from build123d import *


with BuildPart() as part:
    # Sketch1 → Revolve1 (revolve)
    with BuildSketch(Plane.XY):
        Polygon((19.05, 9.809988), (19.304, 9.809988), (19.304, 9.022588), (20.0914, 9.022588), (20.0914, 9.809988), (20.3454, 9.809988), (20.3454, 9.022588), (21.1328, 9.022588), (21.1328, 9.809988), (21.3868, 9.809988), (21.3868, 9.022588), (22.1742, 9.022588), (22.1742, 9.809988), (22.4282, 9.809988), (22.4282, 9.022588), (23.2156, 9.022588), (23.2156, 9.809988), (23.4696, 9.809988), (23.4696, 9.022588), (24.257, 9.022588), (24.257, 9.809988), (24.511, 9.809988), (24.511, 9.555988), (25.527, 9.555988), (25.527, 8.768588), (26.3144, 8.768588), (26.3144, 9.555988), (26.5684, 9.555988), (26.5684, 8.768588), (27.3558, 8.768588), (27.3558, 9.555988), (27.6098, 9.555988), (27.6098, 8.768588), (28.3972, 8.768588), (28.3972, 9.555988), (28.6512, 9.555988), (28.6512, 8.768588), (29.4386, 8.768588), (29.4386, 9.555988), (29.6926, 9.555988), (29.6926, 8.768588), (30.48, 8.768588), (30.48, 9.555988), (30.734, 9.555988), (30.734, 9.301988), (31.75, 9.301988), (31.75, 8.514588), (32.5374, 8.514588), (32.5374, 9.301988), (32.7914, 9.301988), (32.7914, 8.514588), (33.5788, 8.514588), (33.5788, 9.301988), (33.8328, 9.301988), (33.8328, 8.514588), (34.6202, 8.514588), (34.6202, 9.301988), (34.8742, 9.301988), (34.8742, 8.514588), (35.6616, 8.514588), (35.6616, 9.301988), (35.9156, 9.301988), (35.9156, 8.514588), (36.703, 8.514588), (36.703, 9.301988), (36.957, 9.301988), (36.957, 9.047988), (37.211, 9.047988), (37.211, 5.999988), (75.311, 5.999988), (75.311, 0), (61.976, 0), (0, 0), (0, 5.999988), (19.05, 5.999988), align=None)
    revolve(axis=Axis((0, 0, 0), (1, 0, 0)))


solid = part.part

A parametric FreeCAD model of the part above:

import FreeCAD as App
import Part
import Sketcher

V = App.Vector
Q = App.Units.Quantity

doc = App.newDocument("Part")
body = doc.addObject("PartDesign::Body", "Body")

# Sketch on XY plane
sketch1 = body.newObject("Sketcher::SketchObject", "Sketch")
sketch1.AttachmentSupport = (doc.getObject("XY_Plane"), [""])
sketch1.MapMode = "FlatFace"
sketch1.addGeometry([
    Part.LineSegment(V(19.304, 9.809988, 0), V(19.05, 9.809988, 0)),  # 0
    Part.LineSegment(V(19.05, 9.809988, 0), V(19.05, 5.999988, 0)),  # 1
    Part.LineSegment(V(19.05, 5.999988, 0), V(0, 5.999988, 0)),  # 2
    Part.LineSegment(V(0, 5.999988, 0), V(0, 0, 0)),  # 3
    Part.LineSegment(V(0, 0, 0), V(75.311, 0, 0)),  # 4
    Part.LineSegment(V(75.311, 0, 0), V(75.311, 5.999988, 0)),  # 5
    Part.LineSegment(V(75.311, 5.999988, 0), V(37.211, 5.999988, 0)),  # 6
    Part.LineSegment(V(37.211, 5.999988, 0), V(37.211, 9.047988, 0)),  # 7
    Part.LineSegment(V(37.211, 9.047988, 0), V(36.957, 9.047988, 0)),  # 8
    Part.LineSegment(V(36.957, 9.047988, 0), V(36.957, 9.301988, 0)),  # 9
    Part.LineSegment(V(36.957, 9.301988, 0), V(36.703, 9.301988, 0)),  # 10
    Part.LineSegment(V(36.703, 9.301988, 0), V(36.703, 8.514588, 0)),  # 11
    Part.LineSegment(V(36.703, 8.514588, 0), V(35.9156, 8.514588, 0)),  # 12
    Part.LineSegment(V(35.9156, 8.514588, 0), V(35.9156, 9.301988, 0)),  # 13
    Part.LineSegment(V(35.9156, 9.301988, 0), V(35.6616, 9.301988, 0)),  # 14
    Part.LineSegment(V(35.6616, 9.301988, 0), V(35.6616, 8.514588, 0)),  # 15
    Part.LineSegment(V(35.6616, 8.514588, 0), V(34.8742, 8.514588, 0)),  # 16
    Part.LineSegment(V(34.8742, 8.514588, 0), V(34.8742, 9.301988, 0)),  # 17
    Part.LineSegment(V(34.8742, 9.301988, 0), V(34.6202, 9.301988, 0)),  # 18
    Part.LineSegment(V(34.6202, 9.301988, 0), V(34.6202, 8.514588, 0)),  # 19
    Part.LineSegment(V(34.6202, 8.514588, 0), V(33.8328, 8.514588, 0)),  # 20
    Part.LineSegment(V(33.8328, 8.514588, 0), V(33.8328, 9.301988, 0)),  # 21
    Part.LineSegment(V(33.8328, 9.301988, 0), V(33.5788, 9.301988, 0)),  # 22
    Part.LineSegment(V(33.5788, 9.301988, 0), V(33.5788, 8.514588, 0)),  # 23
    Part.LineSegment(V(33.5788, 8.514588, 0), V(32.7914, 8.514588, 0)),  # 24
    Part.LineSegment(V(32.7914, 8.514588, 0), V(32.7914, 9.301988, 0)),  # 25
    Part.LineSegment(V(32.7914, 9.301988, 0), V(32.5374, 9.301988, 0)),  # 26
    Part.LineSegment(V(32.5374, 9.301988, 0), V(32.5374, 8.514588, 0)),  # 27
    Part.LineSegment(V(32.5374, 8.514588, 0), V(31.75, 8.514588, 0)),  # 28
    Part.LineSegment(V(31.75, 8.514588, 0), V(31.75, 9.301988, 0)),  # 29
    Part.LineSegment(V(31.75, 9.301988, 0), V(30.734, 9.301988, 0)),  # 30
    Part.LineSegment(V(30.734, 9.301988, 0), V(30.734, 9.555988, 0)),  # 31
    Part.LineSegment(V(30.734, 9.555988, 0), V(30.48, 9.555988, 0)),  # 32
    Part.LineSegment(V(30.48, 9.555988, 0), V(30.48, 8.768588, 0)),  # 33
    Part.LineSegment(V(30.48, 8.768588, 0), V(29.6926, 8.768588, 0)),  # 34
    Part.LineSegment(V(29.6926, 8.768588, 0), V(29.6926, 9.555988, 0)),  # 35
    Part.LineSegment(V(29.6926, 9.555988, 0), V(29.4386, 9.555988, 0)),  # 36
    Part.LineSegment(V(29.4386, 9.555988, 0), V(29.4386, 8.768588, 0)),  # 37
    Part.LineSegment(V(29.4386, 8.768588, 0), V(28.6512, 8.768588, 0)),  # 38
    Part.LineSegment(V(28.6512, 8.768588, 0), V(28.6512, 9.555988, 0)),  # 39
    Part.LineSegment(V(28.6512, 9.555988, 0), V(28.3972, 9.555988, 0)),  # 40
    Part.LineSegment(V(28.3972, 9.555988, 0), V(28.3972, 8.768588, 0)),  # 41
    Part.LineSegment(V(28.3972, 8.768588, 0), V(27.6098, 8.768588, 0)),  # 42
    Part.LineSegment(V(27.6098, 8.768588, 0), V(27.6098, 9.555988, 0)),  # 43
    Part.LineSegment(V(27.6098, 9.555988, 0), V(27.3558, 9.555988, 0)),  # 44
    Part.LineSegment(V(27.3558, 9.555988, 0), V(27.3558, 8.768588, 0)),  # 45
    Part.LineSegment(V(27.3558, 8.768588, 0), V(26.5684, 8.768588, 0)),  # 46
    Part.LineSegment(V(26.5684, 8.768588, 0), V(26.5684, 9.555988, 0)),  # 47
    Part.LineSegment(V(26.5684, 9.555988, 0), V(26.3144, 9.555988, 0)),  # 48
    Part.LineSegment(V(26.3144, 9.555988, 0), V(26.3144, 8.768588, 0)),  # 49
    Part.LineSegment(V(26.3144, 8.768588, 0), V(25.527, 8.768588, 0)),  # 50
    Part.LineSegment(V(25.527, 8.768588, 0), V(25.527, 9.555988, 0)),  # 51
    Part.LineSegment(V(25.527, 9.555988, 0), V(24.511, 9.555988, 0)),  # 52
    Part.LineSegment(V(24.511, 9.555988, 0), V(24.511, 9.809988, 0)),  # 53
    Part.LineSegment(V(24.511, 9.809988, 0), V(24.257, 9.809988, 0)),  # 54
    Part.LineSegment(V(24.257, 9.809988, 0), V(24.257, 9.022588, 0)),  # 55
    Part.LineSegment(V(24.257, 9.022588, 0), V(23.4696, 9.022588, 0)),  # 56
    Part.LineSegment(V(23.4696, 9.022588, 0), V(23.4696, 9.809988, 0)),  # 57
    Part.LineSegment(V(23.4696, 9.809988, 0), V(23.2156, 9.809988, 0)),  # 58
    Part.LineSegment(V(23.2156, 9.809988, 0), V(23.2156, 9.022588, 0)),  # 59
    Part.LineSegment(V(23.2156, 9.022588, 0), V(22.4282, 9.022588, 0)),  # 60
    Part.LineSegment(V(22.4282, 9.022588, 0), V(22.4282, 9.809988, 0)),  # 61
    Part.LineSegment(V(22.4282, 9.809988, 0), V(22.1742, 9.809988, 0)),  # 62
    Part.LineSegment(V(22.1742, 9.809988, 0), V(22.1742, 9.022588, 0)),  # 63
    Part.LineSegment(V(22.1742, 9.022588, 0), V(21.3868, 9.022588, 0)),  # 64
    Part.LineSegment(V(21.3868, 9.022588, 0), V(21.3868, 9.809988, 0)),  # 65
    Part.LineSegment(V(21.3868, 9.809988, 0), V(21.1328, 9.809988, 0)),  # 66
    Part.LineSegment(V(21.1328, 9.809988, 0), V(21.1328, 9.022588, 0)),  # 67
    Part.LineSegment(V(21.1328, 9.022588, 0), V(20.3454, 9.022588, 0)),  # 68
    Part.LineSegment(V(20.3454, 9.022588, 0), V(20.3454, 9.809988, 0)),  # 69
    Part.LineSegment(V(20.3454, 9.809988, 0), V(20.0914, 9.809988, 0)),  # 70
    Part.LineSegment(V(20.0914, 9.809988, 0), V(20.0914, 9.022588, 0)),  # 71
    Part.LineSegment(V(20.0914, 9.022588, 0), V(19.304, 9.022588, 0)),  # 72
    Part.LineSegment(V(19.304, 9.022588, 0), V(19.304, 9.809988, 0)),  # 73
], False)
sketch1.addConstraint([
    Sketcher.Constraint("Coincident", 0, 2, 1, 1),
    Sketcher.Constraint("Coincident", 1, 2, 2, 1),
    Sketcher.Constraint("Coincident", 2, 2, 3, 1),
    Sketcher.Constraint("Coincident", 3, 2, 4, 1),
    Sketcher.Constraint("Coincident", 4, 2, 5, 1),
    Sketcher.Constraint("Coincident", 5, 2, 6, 1),
    Sketcher.Constraint("Coincident", 6, 2, 7, 1),
    Sketcher.Constraint("Coincident", 7, 2, 8, 1),
    Sketcher.Constraint("Coincident", 8, 2, 9, 1),
    Sketcher.Constraint("Coincident", 9, 2, 10, 1),
    Sketcher.Constraint("Coincident", 10, 2, 11, 1),
    Sketcher.Constraint("Coincident", 11, 2, 12, 1),
    Sketcher.Constraint("Coincident", 12, 2, 13, 1),
    Sketcher.Constraint("Coincident", 13, 2, 14, 1),
    Sketcher.Constraint("Coincident", 14, 2, 15, 1),
    Sketcher.Constraint("Coincident", 15, 2, 16, 1),
    Sketcher.Constraint("Coincident", 16, 2, 17, 1),
    Sketcher.Constraint("Coincident", 17, 2, 18, 1),
    Sketcher.Constraint("Coincident", 18, 2, 19, 1),
    Sketcher.Constraint("Coincident", 19, 2, 20, 1),
    Sketcher.Constraint("Coincident", 20, 2, 21, 1),
    Sketcher.Constraint("Coincident", 21, 2, 22, 1),
    Sketcher.Constraint("Coincident", 22, 2, 23, 1),
    Sketcher.Constraint("Coincident", 23, 2, 24, 1),
    Sketcher.Constraint("Coincident", 24, 2, 25, 1),
    Sketcher.Constraint("Coincident", 25, 2, 26, 1),
    Sketcher.Constraint("Coincident", 26, 2, 27, 1),
    Sketcher.Constraint("Coincident", 27, 2, 28, 1),
    Sketcher.Constraint("Coincident", 28, 2, 29, 1),
    Sketcher.Constraint("Coincident", 29, 2, 30, 1),
    Sketcher.Constraint("Coincident", 30, 2, 31, 1),
    Sketcher.Constraint("Coincident", 31, 2, 32, 1),
    Sketcher.Constraint("Coincident", 32, 2, 33, 1),
    Sketcher.Constraint("Coincident", 33, 2, 34, 1),
    Sketcher.Constraint("Coincident", 34, 2, 35, 1),
    Sketcher.Constraint("Coincident", 35, 2, 36, 1),
    Sketcher.Constraint("Coincident", 36, 2, 37, 1),
    Sketcher.Constraint("Coincident", 37, 2, 38, 1),
    Sketcher.Constraint("Coincident", 38, 2, 39, 1),
    Sketcher.Constraint("Coincident", 39, 2, 40, 1),
    Sketcher.Constraint("Coincident", 40, 2, 41, 1),
    Sketcher.Constraint("Coincident", 41, 2, 42, 1),
    Sketcher.Constraint("Coincident", 42, 2, 43, 1),
    Sketcher.Constraint("Coincident", 43, 2, 44, 1),
    Sketcher.Constraint("Coincident", 44, 2, 45, 1),
    Sketcher.Constraint("Coincident", 45, 2, 46, 1),
    Sketcher.Constraint("Coincident", 46, 2, 47, 1),
    Sketcher.Constraint("Coincident", 47, 2, 48, 1),
    Sketcher.Constraint("Coincident", 48, 2, 49, 1),
    Sketcher.Constraint("Coincident", 49, 2, 50, 1),
    Sketcher.Constraint("Coincident", 50, 2, 51, 1),
    Sketcher.Constraint("Coincident", 51, 2, 52, 1),
    Sketcher.Constraint("Coincident", 52, 2, 53, 1),
    Sketcher.Constraint("Coincident", 53, 2, 54, 1),
    Sketcher.Constraint("Coincident", 54, 2, 55, 1),
    Sketcher.Constraint("Coincident", 55, 2, 56, 1),
    Sketcher.Constraint("Coincident", 56, 2, 57, 1),
    Sketcher.Constraint("Coincident", 57, 2, 58, 1),
    Sketcher.Constraint("Coincident", 58, 2, 59, 1),
    Sketcher.Constraint("Coincident", 59, 2, 60, 1),
    Sketcher.Constraint("Coincident", 60, 2, 61, 1),
    Sketcher.Constraint("Coincident", 61, 2, 62, 1),
    Sketcher.Constraint("Coincident", 62, 2, 63, 1),
    Sketcher.Constraint("Coincident", 63, 2, 64, 1),
    Sketcher.Constraint("Coincident", 64, 2, 65, 1),
    Sketcher.Constraint("Coincident", 65, 2, 66, 1),
    Sketcher.Constraint("Coincident", 66, 2, 67, 1),
    Sketcher.Constraint("Coincident", 67, 2, 68, 1),
    Sketcher.Constraint("Coincident", 68, 2, 69, 1),
    Sketcher.Constraint("Coincident", 69, 2, 70, 1),
    Sketcher.Constraint("Coincident", 70, 2, 71, 1),
    Sketcher.Constraint("Coincident", 71, 2, 72, 1),
    Sketcher.Constraint("Coincident", 72, 2, 73, 1),
    Sketcher.Constraint("Coincident", 73, 2, 0, 1),
    Sketcher.Constraint("Horizontal", 0),
    Sketcher.Constraint("Vertical", 1),
    Sketcher.Constraint("Horizontal", 2),
    Sketcher.Constraint("Vertical", 3),
    Sketcher.Constraint("Horizontal", 4),
    Sketcher.Constraint("Vertical", 5),
    Sketcher.Constraint("Horizontal", 6),
    Sketcher.Constraint("Vertical", 7),
    Sketcher.Constraint("Horizontal", 8),
    Sketcher.Constraint("Vertical", 9),
    Sketcher.Constraint("Horizontal", 10),
    Sketcher.Constraint("Vertical", 11),
    Sketcher.Constraint("Horizontal", 12),
    Sketcher.Constraint("Vertical", 13),
    Sketcher.Constraint("Horizontal", 14),
    Sketcher.Constraint("Vertical", 15),
    Sketcher.Constraint("Horizontal", 16),
    Sketcher.Constraint("Vertical", 17),
    Sketcher.Constraint("Horizontal", 18),
    Sketcher.Constraint("Vertical", 19),
    Sketcher.Constraint("Horizontal", 20),
    Sketcher.Constraint("Vertical", 21),
    Sketcher.Constraint("Horizontal", 22),
    Sketcher.Constraint("Vertical", 23),
    Sketcher.Constraint("Horizontal", 24),
    Sketcher.Constraint("Vertical", 25),
    Sketcher.Constraint("Horizontal", 26),
    Sketcher.Constraint("Vertical", 27),
    Sketcher.Constraint("Horizontal", 28),
    Sketcher.Constraint("Vertical", 29),
    Sketcher.Constraint("Horizontal", 30),
    Sketcher.Constraint("Vertical", 31),
    Sketcher.Constraint("Horizontal", 32),
    Sketcher.Constraint("Vertical", 33),
    Sketcher.Constraint("Horizontal", 34),
    Sketcher.Constraint("Vertical", 35),
    Sketcher.Constraint("Horizontal", 36),
    Sketcher.Constraint("Vertical", 37),
    Sketcher.Constraint("Horizontal", 38),
    Sketcher.Constraint("Vertical", 39),
    Sketcher.Constraint("Horizontal", 40),
    Sketcher.Constraint("Vertical", 41),
    Sketcher.Constraint("Horizontal", 42),
    Sketcher.Constraint("Vertical", 43),
    Sketcher.Constraint("Horizontal", 44),
    Sketcher.Constraint("Vertical", 45),
    Sketcher.Constraint("Horizontal", 46),
    Sketcher.Constraint("Vertical", 47),
    Sketcher.Constraint("Horizontal", 48),
    Sketcher.Constraint("Vertical", 49),
    Sketcher.Constraint("Horizontal", 50),
    Sketcher.Constraint("Vertical", 51),
    Sketcher.Constraint("Horizontal", 52),
    Sketcher.Constraint("Vertical", 53),
    Sketcher.Constraint("Horizontal", 54),
    Sketcher.Constraint("Vertical", 55),
    Sketcher.Constraint("Horizontal", 56),
    Sketcher.Constraint("Vertical", 57),
    Sketcher.Constraint("Horizontal", 58),
    Sketcher.Constraint("Vertical", 59),
    Sketcher.Constraint("Horizontal", 60),
    Sketcher.Constraint("Vertical", 61),
    Sketcher.Constraint("Horizontal", 62),
    Sketcher.Constraint("Vertical", 63),
    Sketcher.Constraint("Horizontal", 64),
    Sketcher.Constraint("Vertical", 65),
    Sketcher.Constraint("Horizontal", 66),
    Sketcher.Constraint("Vertical", 67),
    Sketcher.Constraint("Horizontal", 68),
    Sketcher.Constraint("Vertical", 69),
    Sketcher.Constraint("Horizontal", 70),
    Sketcher.Constraint("Vertical", 71),
    Sketcher.Constraint("Horizontal", 72),
    Sketcher.Constraint("Vertical", 73),
    Sketcher.Constraint("Coincident", 3, 2, -1, 1),
    Sketcher.Constraint("Horizontal", 2, 2, 5, 2),
    Sketcher.Constraint("Horizontal", 10, 2, 13, 2),
    Sketcher.Constraint("Horizontal", 12, 2, 15, 2),
    Sketcher.Constraint("Horizontal", 14, 2, 17, 2),
    Sketcher.Constraint("Horizontal", 16, 2, 19, 2),
    Sketcher.Constraint("Horizontal", 18, 2, 21, 2),
    Sketcher.Constraint("Horizontal", 20, 2, 23, 2),
    Sketcher.Constraint("Horizontal", 22, 2, 25, 2),
    Sketcher.Constraint("Horizontal", 24, 2, 27, 2),
    Sketcher.Constraint("Horizontal", 26, 2, 29, 2),
    Sketcher.Constraint("Horizontal", 32, 2, 35, 2),
    Sketcher.Constraint("Horizontal", 34, 2, 37, 2),
    Sketcher.Constraint("Horizontal", 36, 2, 39, 2),
    Sketcher.Constraint("Horizontal", 38, 2, 41, 2),
    Sketcher.Constraint("Horizontal", 40, 2, 43, 2),
    Sketcher.Constraint("Horizontal", 42, 2, 45, 2),
    Sketcher.Constraint("Horizontal", 44, 2, 47, 2),
    Sketcher.Constraint("Horizontal", 46, 2, 49, 2),
    Sketcher.Constraint("Horizontal", 48, 2, 51, 2),
    Sketcher.Constraint("Horizontal", 0, 2, 53, 2),
    Sketcher.Constraint("Horizontal", 54, 2, 57, 2),
    Sketcher.Constraint("Horizontal", 56, 2, 59, 2),
    Sketcher.Constraint("Horizontal", 58, 2, 61, 2),
    Sketcher.Constraint("Horizontal", 60, 2, 63, 2),
    Sketcher.Constraint("Horizontal", 62, 2, 65, 2),
    Sketcher.Constraint("Horizontal", 64, 2, 67, 2),
    Sketcher.Constraint("Horizontal", 66, 2, 69, 2),
    Sketcher.Constraint("Horizontal", 68, 2, 71, 2),
    Sketcher.Constraint("Equal", 0, 8),
    Sketcher.Constraint("Equal", 8, 10),
    Sketcher.Constraint("Equal", 10, 14),
    Sketcher.Constraint("Equal", 12, 16),
    Sketcher.Constraint("Equal", 14, 18),
    Sketcher.Constraint("Equal", 16, 20),
    Sketcher.Constraint("Equal", 18, 22),
    Sketcher.Constraint("Equal", 20, 24),
    Sketcher.Constraint("Equal", 22, 26),
    Sketcher.Constraint("Equal", 24, 28),
    Sketcher.Constraint("Equal", 26, 32),
    Sketcher.Constraint("Equal", 28, 34),
    Sketcher.Constraint("Equal", 32, 36),
    Sketcher.Constraint("Equal", 34, 38),
    Sketcher.Constraint("Equal", 36, 40),
    Sketcher.Constraint("Equal", 38, 42),
    Sketcher.Constraint("Equal", 40, 44),
    Sketcher.Constraint("Equal", 42, 46),
    Sketcher.Constraint("Equal", 44, 48),
    Sketcher.Constraint("Equal", 46, 50),
    Sketcher.Constraint("Equal", 30, 52),
    Sketcher.Constraint("Equal", 48, 54),
    Sketcher.Constraint("Equal", 50, 56),
    Sketcher.Constraint("Equal", 54, 58),
    Sketcher.Constraint("Equal", 56, 60),
    Sketcher.Constraint("Equal", 58, 62),
    Sketcher.Constraint("Equal", 60, 64),
    Sketcher.Constraint("Equal", 62, 66),
    Sketcher.Constraint("Equal", 64, 68),
    Sketcher.Constraint("Equal", 66, 70),
    Sketcher.Constraint("Equal", 68, 72),
    Sketcher.Constraint("Equal", 70, 9),
    Sketcher.Constraint("Equal", 72, 11),
    Sketcher.Constraint("Equal", 9, 31),
    Sketcher.Constraint("Equal", 29, 33),
    Sketcher.Constraint("Equal", 31, 53),
    Sketcher.Constraint("Equal", 51, 55),
    Sketcher.Constraint("DistanceX", 6, 2, 6, 1, Q("1.5 in")),
    Sketcher.Constraint("DistanceX", 0, 2, 0, 1, Q("0.01 in")),
    Sketcher.Constraint("DistanceX", 2, 2, 2, 1, Q("0.75 in")),
    Sketcher.Constraint("DistanceX", 30, 2, 30, 1, Q("0.04 in")),
    Sketcher.Constraint("DistanceY", 1, 2, 1, 1, Q("0.15 in")),
    Sketcher.Constraint("DistanceX", -1, 1, 32, 2, Q("1.2 in")),
    Sketcher.Constraint("DistanceY", 3, 2, 3, 1, Q("5.999988 mm")),
])
revolution = body.newObject("PartDesign::Revolution", "Revolution")
revolution.Profile = sketch1
revolution.ReferenceAxis = (sketch1, ["H_Axis"])
revolution.Angle = 360

doc.recompute()
